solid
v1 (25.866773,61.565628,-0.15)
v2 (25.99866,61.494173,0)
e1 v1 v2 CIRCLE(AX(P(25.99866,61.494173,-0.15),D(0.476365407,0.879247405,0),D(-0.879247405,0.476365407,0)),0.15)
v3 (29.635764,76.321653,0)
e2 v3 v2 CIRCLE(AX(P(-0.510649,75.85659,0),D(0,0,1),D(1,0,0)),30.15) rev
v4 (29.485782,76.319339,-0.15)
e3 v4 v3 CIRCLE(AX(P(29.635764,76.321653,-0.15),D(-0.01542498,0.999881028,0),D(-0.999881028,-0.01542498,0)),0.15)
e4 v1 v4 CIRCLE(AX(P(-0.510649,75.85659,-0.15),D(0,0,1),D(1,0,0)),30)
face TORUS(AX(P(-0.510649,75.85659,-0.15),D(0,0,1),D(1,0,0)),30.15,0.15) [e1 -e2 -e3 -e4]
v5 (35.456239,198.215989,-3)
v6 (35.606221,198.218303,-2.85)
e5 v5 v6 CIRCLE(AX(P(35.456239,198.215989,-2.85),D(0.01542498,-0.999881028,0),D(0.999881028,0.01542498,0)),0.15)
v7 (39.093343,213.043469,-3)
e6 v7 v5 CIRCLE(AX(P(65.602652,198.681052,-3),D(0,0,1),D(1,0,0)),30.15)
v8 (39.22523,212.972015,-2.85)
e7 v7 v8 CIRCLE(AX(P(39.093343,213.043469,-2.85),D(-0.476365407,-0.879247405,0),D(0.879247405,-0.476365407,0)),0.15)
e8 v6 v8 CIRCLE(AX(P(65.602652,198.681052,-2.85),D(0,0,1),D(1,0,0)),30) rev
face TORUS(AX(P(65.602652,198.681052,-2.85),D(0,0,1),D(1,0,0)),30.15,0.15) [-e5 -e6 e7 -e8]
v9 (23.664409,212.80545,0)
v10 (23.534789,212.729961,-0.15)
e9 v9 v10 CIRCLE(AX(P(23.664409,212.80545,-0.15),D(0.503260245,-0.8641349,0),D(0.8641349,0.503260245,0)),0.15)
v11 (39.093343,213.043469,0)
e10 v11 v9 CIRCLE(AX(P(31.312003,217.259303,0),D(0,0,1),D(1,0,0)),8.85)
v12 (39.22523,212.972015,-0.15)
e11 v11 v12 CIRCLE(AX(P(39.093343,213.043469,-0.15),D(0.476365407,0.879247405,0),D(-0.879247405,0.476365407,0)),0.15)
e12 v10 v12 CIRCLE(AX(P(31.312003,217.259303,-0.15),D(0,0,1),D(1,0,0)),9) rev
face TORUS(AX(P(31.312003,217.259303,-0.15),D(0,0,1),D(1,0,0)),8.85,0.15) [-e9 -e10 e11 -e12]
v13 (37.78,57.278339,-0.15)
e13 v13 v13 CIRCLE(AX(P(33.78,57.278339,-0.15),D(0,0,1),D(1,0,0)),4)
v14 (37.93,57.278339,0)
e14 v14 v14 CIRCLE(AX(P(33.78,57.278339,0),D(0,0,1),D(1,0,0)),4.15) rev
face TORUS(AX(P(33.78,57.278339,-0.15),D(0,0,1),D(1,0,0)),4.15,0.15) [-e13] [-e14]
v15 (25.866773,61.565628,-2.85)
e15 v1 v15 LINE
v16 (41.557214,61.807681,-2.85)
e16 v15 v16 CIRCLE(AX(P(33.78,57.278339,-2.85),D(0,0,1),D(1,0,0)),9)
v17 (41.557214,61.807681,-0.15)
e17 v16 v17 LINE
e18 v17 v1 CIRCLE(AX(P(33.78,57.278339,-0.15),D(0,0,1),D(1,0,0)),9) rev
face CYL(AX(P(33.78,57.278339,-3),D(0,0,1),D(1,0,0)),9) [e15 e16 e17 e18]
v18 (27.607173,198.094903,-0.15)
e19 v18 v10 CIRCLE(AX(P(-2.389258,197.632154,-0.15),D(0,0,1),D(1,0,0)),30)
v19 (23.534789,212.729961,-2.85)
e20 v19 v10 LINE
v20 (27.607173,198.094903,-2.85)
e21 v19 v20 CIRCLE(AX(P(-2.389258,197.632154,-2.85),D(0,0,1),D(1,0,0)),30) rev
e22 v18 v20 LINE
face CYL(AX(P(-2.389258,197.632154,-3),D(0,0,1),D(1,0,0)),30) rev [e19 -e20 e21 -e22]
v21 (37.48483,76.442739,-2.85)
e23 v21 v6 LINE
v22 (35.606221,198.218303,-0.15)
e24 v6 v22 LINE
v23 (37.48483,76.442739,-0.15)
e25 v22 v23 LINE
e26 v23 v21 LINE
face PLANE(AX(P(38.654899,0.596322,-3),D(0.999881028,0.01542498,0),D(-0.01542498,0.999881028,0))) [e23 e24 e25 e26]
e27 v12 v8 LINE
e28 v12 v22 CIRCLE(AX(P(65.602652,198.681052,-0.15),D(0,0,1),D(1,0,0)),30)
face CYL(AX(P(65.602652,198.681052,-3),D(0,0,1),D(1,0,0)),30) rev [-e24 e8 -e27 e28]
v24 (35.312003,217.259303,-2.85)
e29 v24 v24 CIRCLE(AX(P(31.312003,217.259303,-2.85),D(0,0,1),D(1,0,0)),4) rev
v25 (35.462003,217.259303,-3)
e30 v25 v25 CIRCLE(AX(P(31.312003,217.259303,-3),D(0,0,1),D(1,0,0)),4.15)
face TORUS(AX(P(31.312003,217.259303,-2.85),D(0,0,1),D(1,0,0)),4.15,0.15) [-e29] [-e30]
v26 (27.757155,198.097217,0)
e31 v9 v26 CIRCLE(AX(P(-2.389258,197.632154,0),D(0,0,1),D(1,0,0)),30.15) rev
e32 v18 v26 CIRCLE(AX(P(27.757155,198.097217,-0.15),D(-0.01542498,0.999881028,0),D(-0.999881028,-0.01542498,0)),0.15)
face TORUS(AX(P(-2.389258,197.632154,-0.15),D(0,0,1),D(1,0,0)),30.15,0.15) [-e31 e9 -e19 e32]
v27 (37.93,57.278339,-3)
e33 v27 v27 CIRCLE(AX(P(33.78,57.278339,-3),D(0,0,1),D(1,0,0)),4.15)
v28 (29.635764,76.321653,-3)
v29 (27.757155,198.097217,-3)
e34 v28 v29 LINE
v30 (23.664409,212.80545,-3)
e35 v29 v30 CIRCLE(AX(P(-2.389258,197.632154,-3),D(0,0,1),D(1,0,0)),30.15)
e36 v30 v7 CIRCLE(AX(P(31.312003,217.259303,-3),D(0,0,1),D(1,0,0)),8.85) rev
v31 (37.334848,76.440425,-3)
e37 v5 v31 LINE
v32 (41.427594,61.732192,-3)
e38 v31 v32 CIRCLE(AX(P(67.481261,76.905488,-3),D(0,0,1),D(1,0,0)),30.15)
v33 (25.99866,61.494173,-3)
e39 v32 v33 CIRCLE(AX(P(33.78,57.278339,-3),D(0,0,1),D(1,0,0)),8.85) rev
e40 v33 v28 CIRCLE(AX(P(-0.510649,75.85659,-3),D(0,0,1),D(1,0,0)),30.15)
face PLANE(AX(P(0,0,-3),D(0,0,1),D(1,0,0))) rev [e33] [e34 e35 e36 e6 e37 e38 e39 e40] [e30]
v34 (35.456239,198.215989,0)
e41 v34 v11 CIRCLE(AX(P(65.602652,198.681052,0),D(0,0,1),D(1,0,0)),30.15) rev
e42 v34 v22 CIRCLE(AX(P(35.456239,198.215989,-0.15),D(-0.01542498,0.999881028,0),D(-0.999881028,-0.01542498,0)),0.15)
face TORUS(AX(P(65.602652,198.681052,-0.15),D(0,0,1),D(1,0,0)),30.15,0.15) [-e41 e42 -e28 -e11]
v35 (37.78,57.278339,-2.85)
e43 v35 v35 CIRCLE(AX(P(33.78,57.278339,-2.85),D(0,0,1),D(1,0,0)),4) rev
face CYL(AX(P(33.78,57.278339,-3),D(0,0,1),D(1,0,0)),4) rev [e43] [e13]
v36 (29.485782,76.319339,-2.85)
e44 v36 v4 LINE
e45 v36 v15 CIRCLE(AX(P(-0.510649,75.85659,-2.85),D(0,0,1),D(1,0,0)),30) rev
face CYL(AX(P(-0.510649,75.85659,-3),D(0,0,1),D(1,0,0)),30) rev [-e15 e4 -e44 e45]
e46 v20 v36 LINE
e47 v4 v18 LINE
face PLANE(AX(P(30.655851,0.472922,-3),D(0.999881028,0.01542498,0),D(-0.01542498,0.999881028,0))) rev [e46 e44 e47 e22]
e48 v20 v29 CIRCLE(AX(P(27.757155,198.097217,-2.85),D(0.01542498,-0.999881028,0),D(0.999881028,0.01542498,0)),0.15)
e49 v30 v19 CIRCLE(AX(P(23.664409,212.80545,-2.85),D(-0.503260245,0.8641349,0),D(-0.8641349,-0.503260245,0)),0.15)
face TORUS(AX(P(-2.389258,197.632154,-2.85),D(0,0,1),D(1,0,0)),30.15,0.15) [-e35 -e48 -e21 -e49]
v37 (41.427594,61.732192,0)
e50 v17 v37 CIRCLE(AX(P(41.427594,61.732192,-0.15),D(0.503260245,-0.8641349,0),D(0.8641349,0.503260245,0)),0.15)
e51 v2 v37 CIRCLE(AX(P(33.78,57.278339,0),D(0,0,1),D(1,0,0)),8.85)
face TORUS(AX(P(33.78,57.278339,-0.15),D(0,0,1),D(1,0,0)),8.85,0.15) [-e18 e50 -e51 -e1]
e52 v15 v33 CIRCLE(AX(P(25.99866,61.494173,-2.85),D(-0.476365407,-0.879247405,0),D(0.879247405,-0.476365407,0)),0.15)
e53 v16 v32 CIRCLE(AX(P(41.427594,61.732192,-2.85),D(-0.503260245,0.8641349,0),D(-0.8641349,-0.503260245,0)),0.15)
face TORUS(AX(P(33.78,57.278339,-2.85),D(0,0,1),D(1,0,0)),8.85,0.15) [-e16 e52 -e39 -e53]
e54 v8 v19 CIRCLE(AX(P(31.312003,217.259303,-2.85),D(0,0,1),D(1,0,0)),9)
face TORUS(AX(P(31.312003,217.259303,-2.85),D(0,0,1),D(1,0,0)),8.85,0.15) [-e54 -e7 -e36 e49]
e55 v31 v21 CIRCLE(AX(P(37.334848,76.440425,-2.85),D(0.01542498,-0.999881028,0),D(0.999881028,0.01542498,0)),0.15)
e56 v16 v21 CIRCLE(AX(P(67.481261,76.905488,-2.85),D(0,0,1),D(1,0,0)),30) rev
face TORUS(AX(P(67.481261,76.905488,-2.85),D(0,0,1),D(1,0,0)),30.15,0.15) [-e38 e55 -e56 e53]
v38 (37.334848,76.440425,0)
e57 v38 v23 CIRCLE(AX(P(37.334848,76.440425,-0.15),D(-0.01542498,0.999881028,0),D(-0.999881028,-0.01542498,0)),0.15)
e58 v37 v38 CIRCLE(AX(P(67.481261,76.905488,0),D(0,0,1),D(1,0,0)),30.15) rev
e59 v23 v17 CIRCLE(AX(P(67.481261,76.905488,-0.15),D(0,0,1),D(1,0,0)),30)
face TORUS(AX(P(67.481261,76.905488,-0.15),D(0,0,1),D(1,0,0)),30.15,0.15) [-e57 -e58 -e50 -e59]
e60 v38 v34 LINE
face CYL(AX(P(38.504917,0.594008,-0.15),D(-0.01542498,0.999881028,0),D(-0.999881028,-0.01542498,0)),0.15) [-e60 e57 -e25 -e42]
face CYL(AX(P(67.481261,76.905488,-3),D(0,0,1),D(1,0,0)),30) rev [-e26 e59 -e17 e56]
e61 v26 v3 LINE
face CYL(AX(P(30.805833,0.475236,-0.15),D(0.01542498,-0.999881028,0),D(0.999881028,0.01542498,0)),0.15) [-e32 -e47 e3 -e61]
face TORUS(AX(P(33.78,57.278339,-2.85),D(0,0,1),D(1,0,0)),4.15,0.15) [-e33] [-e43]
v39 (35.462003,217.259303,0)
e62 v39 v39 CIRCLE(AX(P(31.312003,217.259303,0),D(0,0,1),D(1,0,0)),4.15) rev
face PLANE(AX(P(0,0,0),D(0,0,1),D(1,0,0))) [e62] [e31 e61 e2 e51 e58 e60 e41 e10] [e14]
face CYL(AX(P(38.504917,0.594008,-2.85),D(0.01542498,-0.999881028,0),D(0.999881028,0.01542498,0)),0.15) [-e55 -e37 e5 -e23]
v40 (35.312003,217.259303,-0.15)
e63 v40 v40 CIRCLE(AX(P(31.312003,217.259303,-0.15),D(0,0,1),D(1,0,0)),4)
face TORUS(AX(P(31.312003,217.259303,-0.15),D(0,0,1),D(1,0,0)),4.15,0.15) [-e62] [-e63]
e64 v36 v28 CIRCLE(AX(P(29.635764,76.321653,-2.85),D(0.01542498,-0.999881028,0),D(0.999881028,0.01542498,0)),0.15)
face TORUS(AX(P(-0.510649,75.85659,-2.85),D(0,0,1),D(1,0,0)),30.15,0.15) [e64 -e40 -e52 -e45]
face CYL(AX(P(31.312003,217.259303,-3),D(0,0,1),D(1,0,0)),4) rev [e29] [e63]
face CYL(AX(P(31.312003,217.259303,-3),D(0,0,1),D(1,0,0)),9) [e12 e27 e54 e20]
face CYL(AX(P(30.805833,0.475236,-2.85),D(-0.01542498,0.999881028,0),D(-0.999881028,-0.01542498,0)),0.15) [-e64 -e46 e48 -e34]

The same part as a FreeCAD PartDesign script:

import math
import FreeCAD as App
import Part
import Sketcher
Q = App.Units.Quantity


def edges_at(feature, points):
    """Names of the edges that pass closest to the given points."""
    edges = feature.Shape.Edges
    near = lambda p: min(range(len(edges)), key=lambda i: edges[i].distToShape(Part.Vertex(*p))[0])
    return sorted({f"Edge{near(p) + 1}" for p in points})

doc = App.newDocument("Part")
body = doc.addObject("PartDesign::Body", "Body")

# Sketch on XY plane
sketch1 = body.newObject("Sketcher::SketchObject", "Sketch")
sketch1.AttachmentSupport = (doc.getObject("XY_Plane"), [""])
sketch1.MapMode = "FlatFace"
sketch1.addGeometry([
    Part.LineSegment(App.Vector(27.436839, 209.136305, 0), App.Vector(29.656116, 65.277938, 0)),  # 0
    Part.ArcOfCircle(Part.Circle(App.Vector(33.78, 57.278339, 0), App.Vector(0, 0, 1), 9), math.radians(117.271621), math.radians(360)),  # 1
    Part.ArcOfCircle(Part.Circle(App.Vector(33.78, 57.278339, 0), App.Vector(0, 0, 1), 9), math.radians(0), math.radians(64.496021)),  # 2
    Part.LineSegment(App.Vector(37.655164, 65.401337, 0), App.Vector(35.435887, 209.259705, 0)),  # 3
    Part.ArcOfCircle(Part.Circle(App.Vector(31.312003, 217.259303, 0), App.Vector(0, 0, 1), 9), math.radians(-62.728379), math.radians(0)),  # 4
    Part.ArcOfCircle(Part.Circle(App.Vector(31.312003, 217.259303, 0), App.Vector(0, 0, 1), 9), math.radians(0), math.radians(244.496021)),  # 5
    Part.ArcOfCircle(Part.Circle(App.Vector(33.78, 57.278339, 0), App.Vector(0, 0, 1), 4), math.radians(-179.116179), math.radians(0.883821)),  # 6
    Part.ArcOfCircle(Part.Circle(App.Vector(33.78, 57.278339, 0), App.Vector(0, 0, 1), 4), math.radians(90.883821), math.radians(180.883821)),  # 7
    Part.ArcOfCircle(Part.Circle(App.Vector(33.78, 57.278339, 0), App.Vector(0, 0, 1), 4), math.radians(0.883821), math.radians(90.883821)),  # 8
    Part.ArcOfCircle(Part.Circle(App.Vector(31.312003, 217.259303, 0), App.Vector(0, 0, 1), 4), math.radians(0.883821), math.radians(180.883821)),  # 9
    Part.ArcOfCircle(Part.Circle(App.Vector(31.312003, 217.259303, 0), App.Vector(0, 0, 1), 4), math.radians(-89.116179), math.radians(0.883821)),  # 10
    Part.ArcOfCircle(Part.Circle(App.Vector(31.312003, 217.259303, 0), App.Vector(0, 0, 1), 4), math.radians(-179.116179), math.radians(-89.116179)),  # 11
], False)
sketch1.addConstraint([
    Sketcher.Constraint("Coincident", 0, 2, 1, 1),
    Sketcher.Constraint("Tangent", 1, 2, 2, 1),
    Sketcher.Constraint("Coincident", 2, 2, 3, 1),
    Sketcher.Constraint("Coincident", 3, 2, 4, 1),
    Sketcher.Constraint("Tangent", 4, 2, 5, 1),
    Sketcher.Constraint("Coincident", 5, 2, 0, 1),
    Sketcher.Constraint("Tangent", 6, 1, 7, 2),
    Sketcher.Constraint("Tangent", 7, 1, 8, 2),
    Sketcher.Constraint("Tangent", 8, 1, 6, 2),
    Sketcher.Constraint("Tangent", 9, 1, 10, 2),
    Sketcher.Constraint("Tangent", 10, 1, 11, 2),
    Sketcher.Constraint("Tangent", 11, 1, 9, 2),
    Sketcher.Constraint("Coincident", 6, 3, 1, 3),
    Sketcher.Constraint("Coincident", 9, 3, 4, 3),
    Sketcher.Constraint("Equal", 1, 2),
    Sketcher.Constraint("Equal", 2, 4),
    Sketcher.Constraint("Equal", 4, 5),
    Sketcher.Constraint("Equal", 8, 9),
    Sketcher.Constraint("Parallel", 0, 3),
    Sketcher.Constraint("Horizontal", 8, 3, 1, 2),
    Sketcher.Constraint("Horizontal", 11, 3, 4, 2),
    Sketcher.Constraint("Equal", 0, 3),
    Sketcher.Constraint("Radius", 1, Q("9 mm")),
    Sketcher.Constraint("Radius", 6, Q("4 mm")),
    Sketcher.Constraint("DistanceX", -1, 1, 1, 3, Q("33.78 mm")),
    Sketcher.Constraint("DistanceY", 1, 3, 2, 2, Q("8.122998 mm")),
    Sketcher.Constraint("DistanceX", -1, 1, 7, 1, Q("33.7183 mm")),
    Sketcher.Constraint("DistanceY", 7, 3, 0, 2, Q("7.999599 mm")),
    Sketcher.Constraint("DistanceY", 6, 1, 2, 3, Q("0.0617 mm")),
    Sketcher.Constraint("DistanceY", 1, 3, 8, 1, Q("0.0617 mm")),
    Sketcher.Constraint("DistanceY", 5, 3, 9, 1, Q("0.0617 mm")),
    Sketcher.Constraint("DistanceX", 5, 3, 10, 1, Q("0.0617 mm")),
    Sketcher.Constraint("DistanceY", 11, 1, 4, 3, Q("0.0617 mm")),
    Sketcher.Constraint("DistanceY", -1, 1, 1, 3, Q("57.278339 mm")),
    Sketcher.Constraint("DistanceX", -1, 1, 5, 2, Q("27.436839 mm")),
    Sketcher.Constraint("DistanceY", -1, 1, 10, 1, Q("213.259779 mm")),
])
pad1 = body.newObject("PartDesign::Pad", "Pad")
pad1.Profile = sketch1
pad1.Length = 3
pad1.Reversed = True
doc.recompute()

fillet = body.newObject("PartDesign::Fillet", "Fillet")
fillet.Base = (pad1, edges_at(pad1, [
    (29.656, 65.278, -1.5),
    (27.437, 209.136, -1.5),
    (35.436, 209.26, -1.5),
    (37.655, 65.401, -1.5),
]))
fillet.Radius = 30
doc.recompute()

fillet2 = body.newObject("PartDesign::Fillet", "Fillet001")
fillet2.Base = (fillet, edges_at(fillet, [
    (31.25, 221.259, -3),
    (28.546, 137.207, 0),
    (28.546, 137.207, -3),
    (31.569, 48.554, 0),
    (31.569, 48.554, -3),
    (36.546, 137.331, 0),
    (33.842, 53.279, -3),
    (36.546, 137.331, -3),
    (28.966, 225.948, 0),
    (28.966, 225.948, -3),
    (28.626, 68.71, 0),
    (28.626, 68.71, -3),
    (38.579, 68.863, 0),
    (38.579, 68.863, -3),
    (36.466, 205.828, 0),
    (36.466, 205.828, -3),
    (26.513, 205.674, 0),
    (26.513, 205.674, -3),
    (33.842, 53.279, 0),
    (31.25, 221.259, 0),
]))
fillet2.Radius = 0.15

doc.recompute()
